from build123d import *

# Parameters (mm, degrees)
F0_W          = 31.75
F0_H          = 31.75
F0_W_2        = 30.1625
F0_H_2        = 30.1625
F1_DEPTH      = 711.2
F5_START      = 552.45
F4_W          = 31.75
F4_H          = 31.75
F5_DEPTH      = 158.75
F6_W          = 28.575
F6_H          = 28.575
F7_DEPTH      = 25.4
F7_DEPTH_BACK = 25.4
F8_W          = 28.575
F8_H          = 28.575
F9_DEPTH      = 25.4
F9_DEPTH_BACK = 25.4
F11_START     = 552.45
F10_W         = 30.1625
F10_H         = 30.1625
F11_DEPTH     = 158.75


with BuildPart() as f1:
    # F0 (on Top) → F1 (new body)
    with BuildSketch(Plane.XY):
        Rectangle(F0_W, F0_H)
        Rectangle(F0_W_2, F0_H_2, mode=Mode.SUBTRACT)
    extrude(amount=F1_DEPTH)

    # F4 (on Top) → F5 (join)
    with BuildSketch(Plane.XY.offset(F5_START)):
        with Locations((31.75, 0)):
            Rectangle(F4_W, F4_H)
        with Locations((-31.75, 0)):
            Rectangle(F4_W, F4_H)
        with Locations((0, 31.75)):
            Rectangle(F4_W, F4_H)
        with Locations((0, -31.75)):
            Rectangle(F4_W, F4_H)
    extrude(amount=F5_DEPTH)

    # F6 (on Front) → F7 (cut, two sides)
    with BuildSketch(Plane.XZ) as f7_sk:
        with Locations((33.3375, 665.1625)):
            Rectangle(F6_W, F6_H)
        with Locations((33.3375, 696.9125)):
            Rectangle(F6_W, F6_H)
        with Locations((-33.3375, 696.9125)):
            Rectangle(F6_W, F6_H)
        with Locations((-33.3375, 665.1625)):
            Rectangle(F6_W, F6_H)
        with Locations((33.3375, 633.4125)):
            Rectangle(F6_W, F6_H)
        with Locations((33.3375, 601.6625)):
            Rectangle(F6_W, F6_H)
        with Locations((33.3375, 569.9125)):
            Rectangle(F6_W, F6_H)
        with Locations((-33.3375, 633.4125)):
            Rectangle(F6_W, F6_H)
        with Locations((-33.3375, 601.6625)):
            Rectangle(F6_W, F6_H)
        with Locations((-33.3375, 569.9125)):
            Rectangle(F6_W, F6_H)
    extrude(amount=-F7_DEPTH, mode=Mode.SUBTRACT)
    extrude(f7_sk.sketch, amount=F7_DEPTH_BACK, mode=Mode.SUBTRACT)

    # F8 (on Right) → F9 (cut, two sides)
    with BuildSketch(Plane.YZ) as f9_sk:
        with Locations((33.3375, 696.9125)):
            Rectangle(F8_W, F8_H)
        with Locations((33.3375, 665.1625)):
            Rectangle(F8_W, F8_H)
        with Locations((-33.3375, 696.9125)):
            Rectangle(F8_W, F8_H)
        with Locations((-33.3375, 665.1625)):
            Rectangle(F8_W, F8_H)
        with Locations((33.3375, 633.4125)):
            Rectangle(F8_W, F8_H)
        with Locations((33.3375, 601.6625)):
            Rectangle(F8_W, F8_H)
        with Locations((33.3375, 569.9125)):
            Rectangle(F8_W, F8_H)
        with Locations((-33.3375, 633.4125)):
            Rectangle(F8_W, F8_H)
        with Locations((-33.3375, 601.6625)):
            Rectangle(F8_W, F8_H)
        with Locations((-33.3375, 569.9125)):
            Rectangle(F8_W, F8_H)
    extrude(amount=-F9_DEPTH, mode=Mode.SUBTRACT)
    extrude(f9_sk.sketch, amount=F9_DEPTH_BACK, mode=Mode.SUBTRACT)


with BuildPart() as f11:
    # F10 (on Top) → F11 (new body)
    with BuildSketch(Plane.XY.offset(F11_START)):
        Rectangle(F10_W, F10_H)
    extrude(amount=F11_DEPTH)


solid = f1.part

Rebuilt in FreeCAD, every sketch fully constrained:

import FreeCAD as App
import Part
import Sketcher
from FreeCAD import Vector
Q = App.Units.Quantity

doc = App.newDocument("Part")
params = doc.addObject("Spreadsheet::Sheet", "Params")
for row, (alias, value) in enumerate([
    ("sketch1_width", "1.25 in"),
    ("sketch1_width2", "1.1875 in"),
    ("pad1_length", "28 in"),
    ("sketch2_width", "1.25 in"),
    ("pad2_length", "6.25 in"),
    ("sketch3_width", "1.125 in"),
    ("sketch4_width", "1.125 in"),
    ("sketch5_width", "1.1875 in"),
    ("pad3_length", "6.25 in"),
], start=1):
    params.set(f"A{row}", alias)
    params.set(f"B{row}", "=" + value)
    params.setAlias(f"B{row}", alias)

body = doc.addObject("PartDesign::Body", "Body")

# Sketch on XY plane
sketch1 = doc.addObject("Sketcher::SketchObject", "Sketch")
body.addObject(sketch1)
sketch1.AttachmentSupport = (doc.XY_Plane, [""])
sketch1.MapMode = "FlatFace"
sketch1.addGeometry([
    Part.LineSegment(Vector(-16, 16, 0), Vector(-16, -16, 0)),  # 0
    Part.LineSegment(Vector(-16, -16, 0), Vector(16, -16, 0)),  # 1
    Part.LineSegment(Vector(16, -16, 0), Vector(16, 16, 0)),  # 2
    Part.LineSegment(Vector(16, 16, 0), Vector(-16, 16, 0)),  # 3
    Part.LineSegment(Vector(15, -15, 0), Vector(-15, -15, 0)),  # 4
    Part.LineSegment(Vector(-15, -15, 0), Vector(-15, 15, 0)),  # 5
    Part.LineSegment(Vector(-15, 15, 0), Vector(15, 15, 0)),  # 6
    Part.LineSegment(Vector(15, 15, 0), Vector(15, -15, 0)),  # 7
], False)
sketch1.addConstraint([
    Sketcher.Constraint("Coincident", 0, 2, 1, 1),
    Sketcher.Constraint("Coincident", 1, 2, 2, 1),
    Sketcher.Constraint("Coincident", 2, 2, 3, 1),
    Sketcher.Constraint("Coincident", 3, 2, 0, 1),
    Sketcher.Constraint("Coincident", 4, 2, 5, 1),
    Sketcher.Constraint("Coincident", 5, 2, 6, 1),
    Sketcher.Constraint("Coincident", 6, 2, 7, 1),
    Sketcher.Constraint("Coincident", 7, 2, 4, 1),
    Sketcher.Constraint("Vertical", 0),
    Sketcher.Constraint("Horizontal", 1),
    Sketcher.Constraint("Vertical", 2),
    Sketcher.Constraint("Horizontal", 3),
    Sketcher.Constraint("Horizontal", 4),
    Sketcher.Constraint("Vertical", 5),
    Sketcher.Constraint("Horizontal", 6),
    Sketcher.Constraint("Vertical", 7),
    Sketcher.Constraint("Symmetric", 0, 2, 2, 2, -1, 1),
    Sketcher.Constraint("Symmetric", 4, 2, 6, 2, -1, 1),
    Sketcher.Constraint("Equal", 3, 0),
    Sketcher.Constraint("Equal", 6, 5),
    Sketcher.Constraint("DistanceX", 1, 1, 1, 2, Q("1.25 in")),
    Sketcher.Constraint("DistanceX", 4, 2, 4, 1, Q("1.1875 in")),
])
sketch1.setExpression("Constraints[20]", "Params.sketch1_width")
sketch1.setExpression("Constraints[21]", "Params.sketch1_width2")
pad1 = doc.addObject("PartDesign::Pad", "Pad")
body.addObject(pad1)
pad1.Profile = sketch1
pad1.setExpression("Length", "Params.pad1_length")

# Sketch on XY plane
sketch2 = doc.addObject("Sketcher::SketchObject", "Sketch001")
body.addObject(sketch2)
sketch2.AttachmentSupport = (doc.XY_Plane, [""])
sketch2.MapMode = "FlatFace"
sketch2.AttachmentOffset = App.Placement(Vector(0, 0, 21.75 * 25.4), App.Rotation())
sketch2.addGeometry([
    Part.LineSegment(Vector(16, 16, 0), Vector(16, -16, 0)),  # 0
    Part.LineSegment(Vector(16, -16, 0), Vector(48, -16, 0)),  # 1
    Part.LineSegment(Vector(48, -16, 0), Vector(48, 16, 0)),  # 2
    Part.LineSegment(Vector(48, 16, 0), Vector(16, 16, 0)),  # 3
    Part.LineSegment(Vector(-48, 16, 0), Vector(-48, -16, 0)),  # 4
    Part.LineSegment(Vector(-48, -16, 0), Vector(-16, -16, 0)),  # 5
    Part.LineSegment(Vector(-16, -16, 0), Vector(-16, 16, 0)),  # 6
    Part.LineSegment(Vector(-16, 16, 0), Vector(-48, 16, 0)),  # 7
    Part.LineSegment(Vector(-16, 48, 0), Vector(-16, 16, 0)),  # 8
    Part.LineSegment(Vector(-16, 16, 0), Vector(16, 16, 0)),  # 9
    Part.LineSegment(Vector(16, 16, 0), Vector(16, 48, 0)),  # 10
    Part.LineSegment(Vector(16, 48, 0), Vector(-16, 48, 0)),  # 11
    Part.LineSegment(Vector(-16, -16, 0), Vector(-16, -48, 0)),  # 12
    Part.LineSegment(Vector(-16, -48, 0), Vector(16, -48, 0)),  # 13
    Part.LineSegment(Vector(16, -48, 0), Vector(16, -16, 0)),  # 14
    Part.LineSegment(Vector(16, -16, 0), Vector(-16, -16, 0)),  # 15
], False)
sketch2.addConstraint([
    Sketcher.Constraint("Coincident", 0, 2, 1, 1),
    Sketcher.Constraint("Coincident", 1, 2, 2, 1),
    Sketcher.Constraint("Coincident", 2, 2, 3, 1),
    Sketcher.Constraint("Coincident", 3, 2, 0, 1),
    Sketcher.Constraint("Coincident", 4, 2, 5, 1),
    Sketcher.Constraint("Coincident", 5, 2, 6, 1),
    Sketcher.Constraint("Coincident", 6, 2, 7, 1),
    Sketcher.Constraint("Coincident", 7, 2, 4, 1),
    Sketcher.Constraint("Coincident", 8, 2, 9, 1),
    Sketcher.Constraint("Coincident", 9, 2, 10, 1),
    Sketcher.Constraint("Coincident", 10, 2, 11, 1),
    Sketcher.Constraint("Coincident", 11, 2, 8, 1),
    Sketcher.Constraint("Coincident", 12, 2, 13, 1),
    Sketcher.Constraint("Coincident", 13, 2, 14, 1),
    Sketcher.Constraint("Coincident", 14, 2, 15, 1),
    Sketcher.Constraint("Coincident", 15, 2, 12, 1),
    Sketcher.Constraint("Vertical", 0),
    Sketcher.Constraint("Horizontal", 1),
    Sketcher.Constraint("Vertical", 2),
    Sketcher.Constraint("Horizontal", 3),
    Sketcher.Constraint("Vertical", 4),
    Sketcher.Constraint("Horizontal", 5),
    Sketcher.Constraint("Vertical", 6),
    Sketcher.Constraint("Horizontal", 7),
    Sketcher.Constraint("Vertical", 8),
    Sketcher.Constraint("Horizontal", 9),
    Sketcher.Constraint("Vertical", 10),
    Sketcher.Constraint("Horizontal", 11),
    Sketcher.Constraint("Vertical", 12),
    Sketcher.Constraint("Horizontal", 13),
    Sketcher.Constraint("Vertical", 14),
    Sketcher.Constraint("Horizontal", 15),
    Sketcher.Constraint("Coincident", 8, 2, 6, 2),
    Sketcher.Constraint("Coincident", 9, 2, 3, 2),
    Sketcher.Constraint("Coincident", 14, 2, 0, 2),
    Sketcher.Constraint("Coincident", 15, 2, 5, 2),
    Sketcher.Constraint("Symmetric", 2, 2, 4, 2, -1, 1),
    Sketcher.Constraint("Symmetric", 10, 2, 12, 2, -1, 1),
    Sketcher.Constraint("Equal", 7, 9),
    Sketcher.Constraint("Equal", 15, 0),
    Sketcher.Constraint("Equal", 6, 8),
    Sketcher.Constraint("DistanceX", 1, 1, 1, 2, Q("1.25 in")),
])
sketch2.setExpression("Constraints[41]", "Params.sketch2_width")
pad2 = doc.addObject("PartDesign::Pad", "Pad001")
body.addObject(pad2)
pad2.Profile = sketch2
pad2.setExpression("Length", "Params.pad2_length")

# Sketch on XZ plane
sketch3 = doc.addObject("Sketcher::SketchObject", "Sketch002")
body.addObject(sketch3)
sketch3.AttachmentSupport = (doc.XZ_Plane, [""])
sketch3.MapMode = "FlatFace"
sketch3.addGeometry([
    Part.LineSegment(Vector(19, 679, 0), Vector(19, 651, 0)),  # 0
    Part.LineSegment(Vector(19, 651, 0), Vector(48, 651, 0)),  # 1
    Part.LineSegment(Vector(48, 651, 0), Vector(48, 679, 0)),  # 2
    Part.LineSegment(Vector(48, 679, 0), Vector(19, 679, 0)),  # 3
    Part.LineSegment(Vector(19, 711, 0), Vector(19, 683, 0)),  # 4
    Part.LineSegment(Vector(19, 683, 0), Vector(48, 683, 0)),  # 5
    Part.LineSegment(Vector(48, 683, 0), Vector(48, 711, 0)),  # 6
    Part.LineSegment(Vector(48, 711, 0), Vector(19, 711, 0)),  # 7
    Part.LineSegment(Vector(-48, 711, 0), Vector(-48, 683, 0)),  # 8
    Part.LineSegment(Vector(-48, 683, 0), Vector(-19, 683, 0)),  # 9
    Part.LineSegment(Vector(-19, 683, 0), Vector(-19, 711, 0)),  # 10
    Part.LineSegment(Vector(-19, 711, 0), Vector(-48, 711, 0)),  # 11
    Part.LineSegment(Vector(-48, 679, 0), Vector(-48, 651, 0)),  # 12
    Part.LineSegment(Vector(-48, 651, 0), Vector(-19, 651, 0)),  # 13
    Part.LineSegment(Vector(-19, 651, 0), Vector(-19, 679, 0)),  # 14
    Part.LineSegment(Vector(-19, 679, 0), Vector(-48, 679, 0)),  # 15
    Part.LineSegment(Vector(19, 648, 0), Vector(19, 619, 0)),  # 16
    Part.LineSegment(Vector(19, 619, 0), Vector(48, 619, 0)),  # 17
    Part.LineSegment(Vector(48, 619, 0), Vector(48, 648, 0)),  # 18
    Part.LineSegment(Vector(48, 648, 0), Vector(19, 648, 0)),  # 19
    Part.LineSegment(Vector(19, 616, 0), Vector(19, 587, 0)),  # 20
    Part.LineSegment(Vector(19, 587, 0), Vector(48, 587, 0)),  # 21
    Part.LineSegment(Vector(48, 587, 0), Vector(48, 616, 0)),  # 22
    Part.LineSegment(Vector(48, 616, 0), Vector(19, 616, 0)),  # 23
    Part.LineSegment(Vector(19, 584, 0), Vector(19, 556, 0)),  # 24
    Part.LineSegment(Vector(19, 556, 0), Vector(48, 556, 0)),  # 25
    Part.LineSegment(Vector(48, 556, 0), Vector(48, 584, 0)),  # 26
    Part.LineSegment(Vector(48, 584, 0), Vector(19, 584, 0)),  # 27
    Part.LineSegment(Vector(-48, 648, 0), Vector(-48, 619, 0)),  # 28
    Part.LineSegment(Vector(-48, 619, 0), Vector(-19, 619, 0)),  # 29
    Part.LineSegment(Vector(-19, 619, 0), Vector(-19, 648, 0)),  # 30
    Part.LineSegment(Vector(-19, 648, 0), Vector(-48, 648, 0)),  # 31
    Part.LineSegment(Vector(-48, 616, 0), Vector(-48, 587, 0)),  # 32
    Part.LineSegment(Vector(-48, 587, 0), Vector(-19, 587, 0)),  # 33
    Part.LineSegment(Vector(-19, 587, 0), Vector(-19, 616, 0)),  # 34
    Part.LineSegment(Vector(-19, 616, 0), Vector(-48, 616, 0)),  # 35
    Part.LineSegment(Vector(-48, 584, 0), Vector(-48, 556, 0)),  # 36
    Part.LineSegment(Vector(-48, 556, 0), Vector(-19, 556, 0)),  # 37
    Part.LineSegment(Vector(-19, 556, 0), Vector(-19, 584, 0)),  # 38
    Part.LineSegment(Vector(-19, 584, 0), Vector(-48, 584, 0)),  # 39
], False)
sketch3.addConstraint([
    Sketcher.Constraint("Coincident", 0, 2, 1, 1),
    Sketcher.Constraint("Coincident", 1, 2, 2, 1),
    Sketcher.Constraint("Coincident", 2, 2, 3, 1),
    Sketcher.Constraint("Coincident", 3, 2, 0, 1),
    Sketcher.Constraint("Coincident", 4, 2, 5, 1),
    Sketcher.Constraint("Coincident", 5, 2, 6, 1),
    Sketcher.Constraint("Coincident", 6, 2, 7, 1),
    Sketcher.Constraint("Coincident", 7, 2, 4, 1),
    Sketcher.Constraint("Coincident", 8, 2, 9, 1),
    Sketcher.Constraint("Coincident", 9, 2, 10, 1),
    Sketcher.Constraint("Coincident", 10, 2, 11, 1),
    Sketcher.Constraint("Coincident", 11, 2, 8, 1),
    Sketcher.Constraint("Coincident", 12, 2, 13, 1),
    Sketcher.Constraint("Coincident", 13, 2, 14, 1),
    Sketcher.Constraint("Coincident", 14, 2, 15, 1),
    Sketcher.Constraint("Coincident", 15, 2, 12, 1),
    Sketcher.Constraint("Coincident", 16, 2, 17, 1),
    Sketcher.Constraint("Coincident", 17, 2, 18, 1),
    Sketcher.Constraint("Coincident", 18, 2, 19, 1),
    Sketcher.Constraint("Coincident", 19, 2, 16, 1),
    Sketcher.Constraint("Coincident", 20, 2, 21, 1),
    Sketcher.Constraint("Coincident", 21, 2, 22, 1),
    Sketcher.Constraint("Coincident", 22, 2, 23, 1),
    Sketcher.Constraint("Coincident", 23, 2, 20, 1),
    Sketcher.Constraint("Coincident", 24, 2, 25, 1),
    Sketcher.Constraint("Coincident", 25, 2, 26, 1),
    Sketcher.Constraint("Coincident", 26, 2, 27, 1),
    Sketcher.Constraint("Coincident", 27, 2, 24, 1),
    Sketcher.Constraint("Coincident", 28, 2, 29, 1),
    Sketcher.Constraint("Coincident", 29, 2, 30, 1),
    Sketcher.Constraint("Coincident", 30, 2, 31, 1),
    Sketcher.Constraint("Coincident", 31, 2, 28, 1),
    Sketcher.Constraint("Coincident", 32, 2, 33, 1),
    Sketcher.Constraint("Coincident", 33, 2, 34, 1),
    Sketcher.Constraint("Coincident", 34, 2, 35, 1),
    Sketcher.Constraint("Coincident", 35, 2, 32, 1),
    Sketcher.Constraint("Coincident", 36, 2, 37, 1),
    Sketcher.Constraint("Coincident", 37, 2, 38, 1),
    Sketcher.Constraint("Coincident", 38, 2, 39, 1),
    Sketcher.Constraint("Coincident", 39, 2, 36, 1),
    Sketcher.Constraint("Vertical", 0),
    Sketcher.Constraint("Horizontal", 1),
    Sketcher.Constraint("Vertical", 2),
    Sketcher.Constraint("Horizontal", 3),
    Sketcher.Constraint("Vertical", 4),
    Sketcher.Constraint("Horizontal", 5),
    Sketcher.Constraint("Vertical", 6),
    Sketcher.Constraint("Horizontal", 7),
    Sketcher.Constraint("Vertical", 8),
    Sketcher.Constraint("Horizontal", 9),
    Sketcher.Constraint("Vertical", 10),
    Sketcher.Constraint("Horizontal", 11),
    Sketcher.Constraint("Vertical", 12),
    Sketcher.Constraint("Horizontal", 13),
    Sketcher.Constraint("Vertical", 14),
    Sketcher.Constraint("Horizontal", 15),
    Sketcher.Constraint("Vertical", 16),
    Sketcher.Constraint("Horizontal", 17),
    Sketcher.Constraint("Vertical", 18),
    Sketcher.Constraint("Horizontal", 19),
    Sketcher.Constraint("Vertical", 20),
    Sketcher.Constraint("Horizontal", 21),
    Sketcher.Constraint("Vertical", 22),
    Sketcher.Constraint("Horizontal", 23),
    Sketcher.Constraint("Vertical", 24),
    Sketcher.Constraint("Horizontal", 25),
    Sketcher.Constraint("Vertical", 26),
    Sketcher.Constraint("Horizontal", 27),
    Sketcher.Constraint("Vertical", 28),
    Sketcher.Constraint("Horizontal", 29),
    Sketcher.Constraint("Vertical", 30),
    Sketcher.Constraint("Horizontal", 31),
    Sketcher.Constraint("Vertical", 32),
    Sketcher.Constraint("Horizontal", 33),
    Sketcher.Constraint("Vertical", 34),
    Sketcher.Constraint("Horizontal", 35),
    Sketcher.Constraint("Vertical", 36),
    Sketcher.Constraint("Horizontal", 37),
    Sketcher.Constraint("Vertical", 38),
    Sketcher.Constraint("Horizontal", 39),
    Sketcher.Constraint("Symmetric", 5, 2, 8, 2, -2),
    Sketcher.Constraint("Symmetric", 7, 2, 10, 2, -2),
    Sketcher.Constraint("Symmetric", 1, 2, 12, 2, -2),
    Sketcher.Constraint("Symmetric", 3, 2, 14, 2, -2),
    Sketcher.Constraint("Symmetric", 17, 2, 28, 2, -2),
    Sketcher.Constraint("Symmetric", 19, 2, 30, 2, -2),
    Sketcher.Constraint("Symmetric", 21, 2, 32, 2, -2),
    Sketcher.Constraint("Symmetric", 23, 2, 34, 2, -2),
    Sketcher.Constraint("Symmetric", 25, 2, 36, 2, -2),
    Sketcher.Constraint("Symmetric", 27, 2, 38, 2, -2),
    Sketcher.Constraint("Vertical", 3, 2, 4, 2),
    Sketcher.Constraint("Vertical", 2, 2, 5, 2),
    Sketcher.Constraint("Vertical", 7, 2, 16, 2),
    Sketcher.Constraint("Vertical", 6, 2, 17, 2),
    Sketcher.Constraint("Vertical", 19, 2, 20, 2),
    Sketcher.Constraint("Vertical", 18, 2, 21, 2),
    Sketcher.Constraint("Vertical", 23, 2, 24, 2),
    Sketcher.Constraint("Vertical", 22, 2, 25, 2),
    Sketcher.Constraint("Equal", 39, 0),
    Sketcher.Constraint("Equal", 2, 4),
    Sketcher.Constraint("Equal", 14, 16),
    Sketcher.Constraint("Equal", 18, 20),
    Sketcher.Constraint("Equal", 22, 24),
    Sketcher.Constraint("DistanceY", -1, 1, 6, 2, Q("28 in")),
    Sketcher.Constraint("DistanceY", -1, 1, 26, 2, Q("23 in")),
    Sketcher.Constraint("DistanceY", -1, 1, 18, 2, Q("25.5 in")),
    Sketcher.Constraint("DistanceX", 9, 2, 4, 2, Q("1.5 in")),
    Sketcher.Constraint("DistanceY", 20, 2, 0, 2, Q("2.5 in")),
    Sketcher.Constraint("DistanceX", 1, 1, 1, 2, Q("1.125 in")),
    Sketcher.Constraint("DistanceY", -1, 1, 2, 2, Q("26.75 in")),
])
sketch3.setExpression("Constraints[108]", "Params.sketch3_width")
pocket1 = doc.addObject("PartDesign::Pocket", "Pocket")
body.addObject(pocket1)
pocket1.Profile = sketch3
pocket1.Type = "ThroughAll"
pocket1.Midplane = True

# Sketch on YZ plane
sketch4 = doc.addObject("Sketcher::SketchObject", "Sketch003")
body.addObject(sketch4)
sketch4.AttachmentSupport = (doc.YZ_Plane, [""])
sketch4.MapMode = "FlatFace"
sketch4.addGeometry([
    Part.LineSegment(Vector(19, 711, 0), Vector(19, 683, 0)),  # 0
    Part.LineSegment(Vector(19, 683, 0), Vector(48, 683, 0)),  # 1
    Part.LineSegment(Vector(48, 683, 0), Vector(48, 711, 0)),  # 2
    Part.LineSegment(Vector(48, 711, 0), Vector(19, 711, 0)),  # 3
    Part.LineSegment(Vector(19, 679, 0), Vector(19, 651, 0)),  # 4
    Part.LineSegment(Vector(19, 651, 0), Vector(48, 651, 0)),  # 5
    Part.LineSegment(Vector(48, 651, 0), Vector(48, 679, 0)),  # 6
    Part.LineSegment(Vector(48, 679, 0), Vector(19, 679, 0)),  # 7
    Part.LineSegment(Vector(-48, 711, 0), Vector(-48, 683, 0)),  # 8
    Part.LineSegment(Vector(-48, 683, 0), Vector(-19, 683, 0)),  # 9
    Part.LineSegment(Vector(-19, 683, 0), Vector(-19, 711, 0)),  # 10
    Part.LineSegment(Vector(-19, 711, 0), Vector(-48, 711, 0)),  # 11
    Part.LineSegment(Vector(-48, 679, 0), Vector(-48, 651, 0)),  # 12
    Part.LineSegment(Vector(-48, 651, 0), Vector(-19, 651, 0)),  # 13
    Part.LineSegment(Vector(-19, 651, 0), Vector(-19, 679, 0)),  # 14
    Part.LineSegment(Vector(-19, 679, 0), Vector(-48, 679, 0)),  # 15
    Part.LineSegment(Vector(19, 648, 0), Vector(19, 619, 0)),  # 16
    Part.LineSegment(Vector(19, 619, 0), Vector(48, 619, 0)),  # 17
    Part.LineSegment(Vector(48, 619, 0), Vector(48, 648, 0)),  # 18
    Part.LineSegment(Vector(48, 648, 0), Vector(19, 648, 0)),  # 19
    Part.LineSegment(Vector(19, 616, 0), Vector(19, 587, 0)),  # 20
    Part.LineSegment(Vector(19, 587, 0), Vector(48, 587, 0)),  # 21
    Part.LineSegment(Vector(48, 587, 0), Vector(48, 616, 0)),  # 22
    Part.LineSegment(Vector(48, 616, 0), Vector(19, 616, 0)),  # 23
    Part.LineSegment(Vector(19, 584, 0), Vector(19, 556, 0)),  # 24
    Part.LineSegment(Vector(19, 556, 0), Vector(48, 556, 0)),  # 25
    Part.LineSegment(Vector(48, 556, 0), Vector(48, 584, 0)),  # 26
    Part.LineSegment(Vector(48, 584, 0), Vector(19, 584, 0)),  # 27
    Part.LineSegment(Vector(-48, 648, 0), Vector(-48, 619, 0)),  # 28
    Part.LineSegment(Vector(-48, 619, 0), Vector(-19, 619, 0)),  # 29
    Part.LineSegment(Vector(-19, 619, 0), Vector(-19, 648, 0)),  # 30
    Part.LineSegment(Vector(-19, 648, 0), Vector(-48, 648, 0)),  # 31
    Part.LineSegment(Vector(-48, 616, 0), Vector(-48, 587, 0)),  # 32
    Part.LineSegment(Vector(-48, 587, 0), Vector(-19, 587, 0)),  # 33
    Part.LineSegment(Vector(-19, 587, 0), Vector(-19, 616, 0)),  # 34
    Part.LineSegment(Vector(-19, 616, 0), Vector(-48, 616, 0)),  # 35
    Part.LineSegment(Vector(-48, 584, 0), Vector(-48, 556, 0)),  # 36
    Part.LineSegment(Vector(-48, 556, 0), Vector(-19, 556, 0)),  # 37
    Part.LineSegment(Vector(-19, 556, 0), Vector(-19, 584, 0)),  # 38
    Part.LineSegment(Vector(-19, 584, 0), Vector(-48, 584, 0)),  # 39
], False)
sketch4.addConstraint([
    Sketcher.Constraint("Coincident", 0, 2, 1, 1),
    Sketcher.Constraint("Coincident", 1, 2, 2, 1),
    Sketcher.Constraint("Coincident", 2, 2, 3, 1),
    Sketcher.Constraint("Coincident", 3, 2, 0, 1),
    Sketcher.Constraint("Coincident", 4, 2, 5, 1),
    Sketcher.Constraint("Coincident", 5, 2, 6, 1),
    Sketcher.Constraint("Coincident", 6, 2, 7, 1),
    Sketcher.Constraint("Coincident", 7, 2, 4, 1),
    Sketcher.Constraint("Coincident", 8, 2, 9, 1),
    Sketcher.Constraint("Coincident", 9, 2, 10, 1),
    Sketcher.Constraint("Coincident", 10, 2, 11, 1),
    Sketcher.Constraint("Coincident", 11, 2, 8, 1),
    Sketcher.Constraint("Coincident", 12, 2, 13, 1),
    Sketcher.Constraint("Coincident", 13, 2, 14, 1),
    Sketcher.Constraint("Coincident", 14, 2, 15, 1),
    Sketcher.Constraint("Coincident", 15, 2, 12, 1),
    Sketcher.Constraint("Coincident", 16, 2, 17, 1),
    Sketcher.Constraint("Coincident", 17, 2, 18, 1),
    Sketcher.Constraint("Coincident", 18, 2, 19, 1),
    Sketcher.Constraint("Coincident", 19, 2, 16, 1),
    Sketcher.Constraint("Coincident", 20, 2, 21, 1),
    Sketcher.Constraint("Coincident", 21, 2, 22, 1),
    Sketcher.Constraint("Coincident", 22, 2, 23, 1),
    Sketcher.Constraint("Coincident", 23, 2, 20, 1),
    Sketcher.Constraint("Coincident", 24, 2, 25, 1),
    Sketcher.Constraint("Coincident", 25, 2, 26, 1),
    Sketcher.Constraint("Coincident", 26, 2, 27, 1),
    Sketcher.Constraint("Coincident", 27, 2, 24, 1),
    Sketcher.Constraint("Coincident", 28, 2, 29, 1),
    Sketcher.Constraint("Coincident", 29, 2, 30, 1),
    Sketcher.Constraint("Coincident", 30, 2, 31, 1),
    Sketcher.Constraint("Coincident", 31, 2, 28, 1),
    Sketcher.Constraint("Coincident", 32, 2, 33, 1),
    Sketcher.Constraint("Coincident", 33, 2, 34, 1),
    Sketcher.Constraint("Coincident", 34, 2, 35, 1),
    Sketcher.Constraint("Coincident", 35, 2, 32, 1),
    Sketcher.Constraint("Coincident", 36, 2, 37, 1),
    Sketcher.Constraint("Coincident", 37, 2, 38, 1),
    Sketcher.Constraint("Coincident", 38, 2, 39, 1),
    Sketcher.Constraint("Coincident", 39, 2, 36, 1),
    Sketcher.Constraint("Vertical", 0),
    Sketcher.Constraint("Horizontal", 1),
    Sketcher.Constraint("Vertical", 2),
    Sketcher.Constraint("Horizontal", 3),
    Sketcher.Constraint("Vertical", 4),
    Sketcher.Constraint("Horizontal", 5),
    Sketcher.Constraint("Vertical", 6),
    Sketcher.Constraint("Horizontal", 7),
    Sketcher.Constraint("Vertical", 8),
    Sketcher.Constraint("Horizontal", 9),
    Sketcher.Constraint("Vertical", 10),
    Sketcher.Constraint("Horizontal", 11),
    Sketcher.Constraint("Vertical", 12),
    Sketcher.Constraint("Horizontal", 13),
    Sketcher.Constraint("Vertical", 14),
    Sketcher.Constraint("Horizontal", 15),
    Sketcher.Constraint("Vertical", 16),
    Sketcher.Constraint("Horizontal", 17),
    Sketcher.Constraint("Vertical", 18),
    Sketcher.Constraint("Horizontal", 19),
    Sketcher.Constraint("Vertical", 20),
    Sketcher.Constraint("Horizontal", 21),
    Sketcher.Constraint("Vertical", 22),
    Sketcher.Constraint("Horizontal", 23),
    Sketcher.Constraint("Vertical", 24),
    Sketcher.Constraint("Horizontal", 25),
    Sketcher.Constraint("Vertical", 26),
    Sketcher.Constraint("Horizontal", 27),
    Sketcher.Constraint("Vertical", 28),
    Sketcher.Constraint("Horizontal", 29),
    Sketcher.Constraint("Vertical", 30),
    Sketcher.Constraint("Horizontal", 31),
    Sketcher.Constraint("Vertical", 32),
    Sketcher.Constraint("Horizontal", 33),
    Sketcher.Constraint("Vertical", 34),
    Sketcher.Constraint("Horizontal", 35),
    Sketcher.Constraint("Vertical", 36),
    Sketcher.Constraint("Horizontal", 37),
    Sketcher.Constraint("Vertical", 38),
    Sketcher.Constraint("Horizontal", 39),
    Sketcher.Constraint("Symmetric", 1, 2, 8, 2, -2),
    Sketcher.Constraint("Symmetric", 3, 2, 10, 2, -2),
    Sketcher.Constraint("Symmetric", 5, 2, 12, 2, -2),
    Sketcher.Constraint("Symmetric", 7, 2, 14, 2, -2),
    Sketcher.Constraint("Symmetric", 17, 2, 28, 2, -2),
    Sketcher.Constraint("Symmetric", 19, 2, 30, 2, -2),
    Sketcher.Constraint("Symmetric", 21, 2, 32, 2, -2),
    Sketcher.Constraint("Symmetric", 23, 2, 34, 2, -2),
    Sketcher.Constraint("Symmetric", 25, 2, 36, 2, -2),
    Sketcher.Constraint("Symmetric", 27, 2, 38, 2, -2),
    Sketcher.Constraint("Vertical", 3, 2, 4, 2),
    Sketcher.Constraint("Vertical", 2, 2, 5, 2),
    Sketcher.Constraint("Vertical", 7, 2, 16, 2),
    Sketcher.Constraint("Vertical", 6, 2, 17, 2),
    Sketcher.Constraint("Vertical", 19, 2, 20, 2),
    Sketcher.Constraint("Vertical", 18, 2, 21, 2),
    Sketcher.Constraint("Vertical", 23, 2, 24, 2),
    Sketcher.Constraint("Vertical", 22, 2, 25, 2),
    Sketcher.Constraint("Equal", 39, 0),
    Sketcher.Constraint("Equal", 2, 4),
    Sketcher.Constraint("Equal", 14, 16),
    Sketcher.Constraint("Equal", 18, 20),
    Sketcher.Constraint("Equal", 22, 24),
    Sketcher.Constraint("DistanceY", -1, 1, 2, 2, Q("28 in")),
    Sketcher.Constraint("DistanceY", -1, 1, 26, 2, Q("23 in")),
    Sketcher.Constraint("DistanceY", -1, 1, 18, 2, Q("25.5 in")),
    Sketcher.Constraint("DistanceX", 9, 2, 0, 2, Q("1.5 in")),
    Sketcher.Constraint("DistanceY", 20, 2, 4, 2, Q("2.5 in")),
    Sketcher.Constraint("DistanceX", 1, 1, 1, 2, Q("1.125 in")),
    Sketcher.Constraint("DistanceY", -1, 1, 6, 2, Q("26.75 in")),
])
sketch4.setExpression("Constraints[108]", "Params.sketch4_width")
pocket2 = doc.addObject("PartDesign::Pocket", "Pocket001")
body.addObject(pocket2)
pocket2.Profile = sketch4
pocket2.Type = "ThroughAll"
pocket2.Midplane = True
body2 = doc.addObject("PartDesign::Body", "Body001")

# Sketch on XY plane
sketch5 = doc.addObject("Sketcher::SketchObject", "Sketch004")
body2.addObject(sketch5)
sketch5.AttachmentSupport = (doc.getObject("XY_Plane001"), [""])
sketch5.MapMode = "FlatFace"
sketch5.AttachmentOffset = App.Placement(Vector(0, 0, 21.75 * 25.4), App.Rotation())
sketch5.addGeometry([
    Part.LineSegment(Vector(-15, 15, 0), Vector(-15, -15, 0)),
    Part.LineSegment(Vector(-15, -15, 0), Vector(15, -15, 0)),
    Part.LineSegment(Vector(15, -15, 0), Vector(15, 15, 0)),
    Part.LineSegment(Vector(15, 15, 0), Vector(-15, 15, 0)),
], False)
sketch5.addConstraint([
    Sketcher.Constraint("Coincident", 0, 2, 1, 1),
    Sketcher.Constraint("Coincident", 1, 2, 2, 1),
    Sketcher.Constraint("Coincident", 2, 2, 3, 1),
    Sketcher.Constraint("Coincident", 3, 2, 0, 1),
    Sketcher.Constraint("Vertical", 0),
    Sketcher.Constraint("Horizontal", 1),
    Sketcher.Constraint("Vertical", 2),
    Sketcher.Constraint("Horizontal", 3),
    Sketcher.Constraint("Symmetric", 0, 2, 2, 2, -1, 1),
    Sketcher.Constraint("Equal", 3, 0),
    Sketcher.Constraint("DistanceX", 1, 1, 1, 2, Q("1.1875 in")),
])
sketch5.setExpression("Constraints[10]", "Params.sketch5_width")
pad3 = doc.addObject("PartDesign::Pad", "Pad002")
body2.addObject(pad3)
pad3.Profile = sketch5
pad3.setExpression("Length", "Params.pad3_length")
body2.Visibility = False

doc.recompute()
